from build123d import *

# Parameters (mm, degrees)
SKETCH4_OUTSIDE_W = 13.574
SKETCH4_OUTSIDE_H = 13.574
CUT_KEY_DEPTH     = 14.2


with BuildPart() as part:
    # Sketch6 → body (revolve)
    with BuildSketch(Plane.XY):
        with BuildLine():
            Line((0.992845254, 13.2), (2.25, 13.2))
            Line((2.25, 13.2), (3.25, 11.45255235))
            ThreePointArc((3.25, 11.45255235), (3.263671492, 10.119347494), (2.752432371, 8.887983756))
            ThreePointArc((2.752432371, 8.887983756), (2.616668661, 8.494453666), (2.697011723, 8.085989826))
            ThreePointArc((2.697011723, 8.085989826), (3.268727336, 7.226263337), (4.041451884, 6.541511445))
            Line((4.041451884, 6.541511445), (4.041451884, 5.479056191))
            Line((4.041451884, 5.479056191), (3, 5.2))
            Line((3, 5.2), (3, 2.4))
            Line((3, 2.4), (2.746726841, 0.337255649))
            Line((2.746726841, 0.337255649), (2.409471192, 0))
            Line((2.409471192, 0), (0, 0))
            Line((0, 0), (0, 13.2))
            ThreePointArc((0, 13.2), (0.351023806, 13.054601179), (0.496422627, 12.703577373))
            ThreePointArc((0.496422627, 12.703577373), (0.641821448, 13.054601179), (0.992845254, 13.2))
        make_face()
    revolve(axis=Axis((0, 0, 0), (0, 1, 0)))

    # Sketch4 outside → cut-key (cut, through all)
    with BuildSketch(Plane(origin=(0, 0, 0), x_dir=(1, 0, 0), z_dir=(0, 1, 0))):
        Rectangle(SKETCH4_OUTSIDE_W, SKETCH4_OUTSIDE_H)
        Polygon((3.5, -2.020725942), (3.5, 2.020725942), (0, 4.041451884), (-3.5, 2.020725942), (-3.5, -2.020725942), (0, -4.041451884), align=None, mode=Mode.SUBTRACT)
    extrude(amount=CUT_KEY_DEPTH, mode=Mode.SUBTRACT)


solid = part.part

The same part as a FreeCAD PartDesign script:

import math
import FreeCAD as App
import Part
import Sketcher
from FreeCAD import Vector
Q = App.Units.Quantity

doc = App.newDocument("Part")
body = doc.addObject("PartDesign::Body", "Body")

sketch1 = body.newObject("Sketcher::SketchObject", "Sketch")
sketch1.AttachmentSupport = (doc.getObject("XY_Plane"), [""])
sketch1.MapMode = "FlatFace"
sketch1.addGeometry(Part.LineSegment(Vector(2.25, 13.2, 0), Vector(0.992845, 13.2, 0)), False)
sketch1.addGeometry(Part.ArcOfCircle(Part.Circle(Vector(0.992845, 12.703577, 0), Vector(0, 0, 1), 0.496423), math.radians(90), math.radians(180)), False)
sketch1.addGeometry(Part.ArcOfCircle(Part.Circle(Vector(0, 12.703577, 0), Vector(0, 0, 1), 0.496423), math.radians(0), math.radians(90)), False)
sketch1.addGeometry(Part.LineSegment(Vector(0, 13.2, 0), Vector(0, 0, 0)), False)
sketch1.addGeometry(Part.LineSegment(Vector(0, 0, 0), Vector(2.409471, 0, 0)), False)
sketch1.addGeometry(Part.LineSegment(Vector(2.409471, 0, 0), Vector(2.746727, 0.337256, 0)), False)
sketch1.addGeometry(Part.LineSegment(Vector(2.746727, 0.337256, 0), Vector(3, 2.4, 0)), False)
sketch1.addGeometry(Part.LineSegment(Vector(3, 2.4, 0), Vector(3, 5.2, 0)), False)
sketch1.addGeometry(Part.LineSegment(Vector(3, 5.2, 0), Vector(4.041452, 5.479056, 0)), False)
sketch1.addGeometry(Part.LineSegment(Vector(4.041452, 5.479056, 0), Vector(4.041452, 6.541511, 0)), False)
sketch1.addGeometry(Part.ArcOfCircle(Part.Circle(Vector(6.28578, 9.852552, 0), Vector(0, 0, 1), 4), math.radians(-153.791393), math.radians(-124.130658)), False)
sketch1.addGeometry(Part.ArcOfCircle(Part.Circle(Vector(3.414765, 8.439302, 0), Vector(0, 0, 1), 0.8), math.radians(145.885276), math.radians(206.208607)), False)
sketch1.addGeometry(Part.ArcOfCircle(Part.Circle(Vector(0, 10.752552, 0), Vector(0, 0, 1), 3.32453), math.radians(-34.114725), math.radians(12.154942)), False)
sketch1.addGeometry(Part.LineSegment(Vector(3.25, 11.452552, 0), Vector(2.25, 13.2, 0)), False)
sketch1.addConstraint(Sketcher.Constraint("Tangent", 0, 2, 1, 1))
sketch1.addConstraint(Sketcher.Constraint("Tangent", 1, 2, 2, 1))
sketch1.addConstraint(Sketcher.Constraint("Coincident", 2, 2, 3, 1))
sketch1.addConstraint(Sketcher.Constraint("Coincident", 3, 2, 4, 1))
sketch1.addConstraint(Sketcher.Constraint("Coincident", 4, 2, 5, 1))
sketch1.addConstraint(Sketcher.Constraint("Coincident", 5, 2, 6, 1))
sketch1.addConstraint(Sketcher.Constraint("Coincident", 6, 2, 7, 1))
sketch1.addConstraint(Sketcher.Constraint("Coincident", 7, 2, 8, 1))
sketch1.addConstraint(Sketcher.Constraint("Coincident", 8, 2, 9, 1))
sketch1.addConstraint(Sketcher.Constraint("Coincident", 9, 2, 10, 2))
sketch1.addConstraint(Sketcher.Constraint("Tangent", 10, 1, 11, 2))
sketch1.addConstraint(Sketcher.Constraint("Tangent", 11, 1, 12, 1))
sketch1.addConstraint(Sketcher.Constraint("Coincident", 12, 2, 13, 1))
sketch1.addConstraint(Sketcher.Constraint("Coincident", 13, 2, 0, 1))
sketch1.addConstraint(Sketcher.Constraint("Horizontal", 0))
sketch1.addConstraint(Sketcher.Constraint("Vertical", 3))
sketch1.addConstraint(Sketcher.Constraint("Horizontal", 4))
sketch1.addConstraint(Sketcher.Constraint("Vertical", 7))
sketch1.addConstraint(Sketcher.Constraint("Vertical", 9))
sketch1.addConstraint(Sketcher.Constraint("Coincident", 3, 2, -1, 1))
sketch1.addConstraint(Sketcher.Constraint("Equal", 1, 2))
sketch1.addConstraint(Sketcher.Constraint("PointOnObject", 2, 3, -2))
sketch1.addConstraint(Sketcher.Constraint("PointOnObject", 12, 3, -2))
sketch1.addConstraint(Sketcher.Constraint("Horizontal", 1, 3, 2, 3))
sketch1.addConstraint(Sketcher.Constraint("Radius", 10, 4.0))
sketch1.addConstraint(Sketcher.Constraint("Radius", 11, 0.8))
sketch1.addConstraint(Sketcher.Constraint("Angle", 5, Q("45 deg")))
sketch1.addConstraint(Sketcher.Constraint("Angle", 6, Q("83 deg")))
sketch1.addConstraint(Sketcher.Constraint("Angle", 8, Q("15 deg")))
sketch1.addConstraint(Sketcher.Constraint("DistanceY", 3, 2, 3, 1, 13.2))
sketch1.addConstraint(Sketcher.Constraint("DistanceY", 7, 1, 7, 2, 2.8))
sketch1.addConstraint(Sketcher.Constraint("DistanceX", -1, 1, 6, 2, 3.0))
sketch1.addConstraint(Sketcher.Constraint("DistanceX", 13, 2, 12, 2, 1.0))
sketch1.addConstraint(Sketcher.Constraint("DistanceY", -1, 1, 6, 2, 2.4))
sketch1.addConstraint(Sketcher.Constraint("DistanceY", 10, 3, 12, 3, 0.9))
sketch1.addConstraint(Sketcher.Constraint("DistanceX", -1, 1, 12, 2, 3.25))
sketch1.addConstraint(Sketcher.Constraint("Radius", 12, 3.32453))
sketch1.addConstraint(Sketcher.Constraint("Radius", 1, 0.496423))
sketch1.addConstraint(Sketcher.Constraint("DistanceX", 4, 1, 4, 2, 2.409471))
sketch1.addConstraint(Sketcher.Constraint("DistanceY", 5, 2, 8, 2, 5.141801))
sketch1.addConstraint(Sketcher.Constraint("Distance", 13, 2.013349))
sketch1.addConstraint(Sketcher.Constraint("DistanceY", 9, 1, 9, 2, 1.062455))
revolution = body.newObject("PartDesign::Revolution", "Revolution")
revolution.Profile = sketch1
revolution.ReferenceAxis = (sketch1, ["V_Axis"])
revolution.Angle = 360

sketch2 = body.newObject("Sketcher::SketchObject", "Sketch001")
sketch2.AttachmentSupport = (doc.getObject("XZ_Plane"), [""])
sketch2.MapMode = "FlatFace"
sketch2.addGeometry(Part.LineSegment(Vector(-6.787, -6.787, 0), Vector(-6.787, 6.787, 0)), False)
sketch2.addGeometry(Part.LineSegment(Vector(-6.787, 6.787, 0), Vector(6.787, 6.787, 0)), False)
sketch2.addGeometry(Part.LineSegment(Vector(6.787, 6.787, 0), Vector(6.787, -6.787, 0)), False)
sketch2.addGeometry(Part.LineSegment(Vector(6.787, -6.787, 0), Vector(-6.787, -6.787, 0)), False)
sketch2.addGeometry(Part.LineSegment(Vector(3.5, -2.020726, 0), Vector(3.5, 2.020726, 0)), False)
sketch2.addGeometry(Part.LineSegment(Vector(3.5, 2.020726, 0), Vector(0, 4.041452, 0)), False)
sketch2.addGeometry(Part.LineSegment(Vector(0, 4.041452, 0), Vector(-3.5, 2.020726, 0)), False)
sketch2.addGeometry(Part.LineSegment(Vector(-3.5, 2.020726, 0), Vector(-3.5, -2.020726, 0)), False)
sketch2.addGeometry(Part.LineSegment(Vector(-3.5, -2.020726, 0), Vector(0, -4.041452, 0)), False)
sketch2.addGeometry(Part.LineSegment(Vector(0, -4.041452, 0), Vector(3.5, -2.020726, 0)), False)
sketch2.addConstraint(Sketcher.Constraint("Coincident", 0, 2, 1, 1))
sketch2.addConstraint(Sketcher.Constraint("Coincident", 1, 2, 2, 1))
sketch2.addConstraint(Sketcher.Constraint("Coincident", 2, 2, 3, 1))
sketch2.addConstraint(Sketcher.Constraint("Coincident", 3, 2, 0, 1))
sketch2.addConstraint(Sketcher.Constraint("Coincident", 4, 2, 5, 1))
sketch2.addConstraint(Sketcher.Constraint("Coincident", 5, 2, 6, 1))
sketch2.addConstraint(Sketcher.Constraint("Coincident", 6, 2, 7, 1))
sketch2.addConstraint(Sketcher.Constraint("Coincident", 7, 2, 8, 1))
sketch2.addConstraint(Sketcher.Constraint("Coincident", 8, 2, 9, 1))
sketch2.addConstraint(Sketcher.Constraint("Coincident", 9, 2, 4, 1))
sketch2.addConstraint(Sketcher.Constraint("Vertical", 0))
sketch2.addConstraint(Sketcher.Constraint("Horizontal", 1))
sketch2.addConstraint(Sketcher.Constraint("Vertical", 2))
sketch2.addConstraint(Sketcher.Constraint("Horizontal", 3))
sketch2.addConstraint(Sketcher.Constraint("Vertical", 4))
sketch2.addConstraint(Sketcher.Constraint("Vertical", 7))
sketch2.addConstraint(Sketcher.Constraint("Symmetric", 0, 2, 2, 2, -1, 1))
sketch2.addConstraint(Sketcher.Constraint("Symmetric", 4, 2, 7, 2, -1, 1))
sketch2.addConstraint(Sketcher.Constraint("Symmetric", 5, 2, 8, 2, -1, 1))
sketch2.addConstraint(Sketcher.Constraint("PointOnObject", 5, 2, -2))
sketch2.addConstraint(Sketcher.Constraint("Parallel", 6, 9))
sketch2.addConstraint(Sketcher.Constraint("Horizontal", 4, 2, 6, 2))
sketch2.addConstraint(Sketcher.Constraint("Equal", 3, 0))
sketch2.addConstraint(Sketcher.Constraint("Angle", 5, Q("150 deg")))
sketch2.addConstraint(Sketcher.Constraint("DistanceX", 6, 2, 4, 2, 7.0))
sketch2.addConstraint(Sketcher.Constraint("DistanceX", 1, 1, 1, 2, 13.574))
sketch2.addConstraint(Sketcher.Constraint("DistanceY", 4, 1, 4, 2, 4.041452))
pocket1 = body.newObject("PartDesign::Pocket", "Pocket")
pocket1.Profile = sketch2
pocket1.Type = "ThroughAll"

doc.recompute()
